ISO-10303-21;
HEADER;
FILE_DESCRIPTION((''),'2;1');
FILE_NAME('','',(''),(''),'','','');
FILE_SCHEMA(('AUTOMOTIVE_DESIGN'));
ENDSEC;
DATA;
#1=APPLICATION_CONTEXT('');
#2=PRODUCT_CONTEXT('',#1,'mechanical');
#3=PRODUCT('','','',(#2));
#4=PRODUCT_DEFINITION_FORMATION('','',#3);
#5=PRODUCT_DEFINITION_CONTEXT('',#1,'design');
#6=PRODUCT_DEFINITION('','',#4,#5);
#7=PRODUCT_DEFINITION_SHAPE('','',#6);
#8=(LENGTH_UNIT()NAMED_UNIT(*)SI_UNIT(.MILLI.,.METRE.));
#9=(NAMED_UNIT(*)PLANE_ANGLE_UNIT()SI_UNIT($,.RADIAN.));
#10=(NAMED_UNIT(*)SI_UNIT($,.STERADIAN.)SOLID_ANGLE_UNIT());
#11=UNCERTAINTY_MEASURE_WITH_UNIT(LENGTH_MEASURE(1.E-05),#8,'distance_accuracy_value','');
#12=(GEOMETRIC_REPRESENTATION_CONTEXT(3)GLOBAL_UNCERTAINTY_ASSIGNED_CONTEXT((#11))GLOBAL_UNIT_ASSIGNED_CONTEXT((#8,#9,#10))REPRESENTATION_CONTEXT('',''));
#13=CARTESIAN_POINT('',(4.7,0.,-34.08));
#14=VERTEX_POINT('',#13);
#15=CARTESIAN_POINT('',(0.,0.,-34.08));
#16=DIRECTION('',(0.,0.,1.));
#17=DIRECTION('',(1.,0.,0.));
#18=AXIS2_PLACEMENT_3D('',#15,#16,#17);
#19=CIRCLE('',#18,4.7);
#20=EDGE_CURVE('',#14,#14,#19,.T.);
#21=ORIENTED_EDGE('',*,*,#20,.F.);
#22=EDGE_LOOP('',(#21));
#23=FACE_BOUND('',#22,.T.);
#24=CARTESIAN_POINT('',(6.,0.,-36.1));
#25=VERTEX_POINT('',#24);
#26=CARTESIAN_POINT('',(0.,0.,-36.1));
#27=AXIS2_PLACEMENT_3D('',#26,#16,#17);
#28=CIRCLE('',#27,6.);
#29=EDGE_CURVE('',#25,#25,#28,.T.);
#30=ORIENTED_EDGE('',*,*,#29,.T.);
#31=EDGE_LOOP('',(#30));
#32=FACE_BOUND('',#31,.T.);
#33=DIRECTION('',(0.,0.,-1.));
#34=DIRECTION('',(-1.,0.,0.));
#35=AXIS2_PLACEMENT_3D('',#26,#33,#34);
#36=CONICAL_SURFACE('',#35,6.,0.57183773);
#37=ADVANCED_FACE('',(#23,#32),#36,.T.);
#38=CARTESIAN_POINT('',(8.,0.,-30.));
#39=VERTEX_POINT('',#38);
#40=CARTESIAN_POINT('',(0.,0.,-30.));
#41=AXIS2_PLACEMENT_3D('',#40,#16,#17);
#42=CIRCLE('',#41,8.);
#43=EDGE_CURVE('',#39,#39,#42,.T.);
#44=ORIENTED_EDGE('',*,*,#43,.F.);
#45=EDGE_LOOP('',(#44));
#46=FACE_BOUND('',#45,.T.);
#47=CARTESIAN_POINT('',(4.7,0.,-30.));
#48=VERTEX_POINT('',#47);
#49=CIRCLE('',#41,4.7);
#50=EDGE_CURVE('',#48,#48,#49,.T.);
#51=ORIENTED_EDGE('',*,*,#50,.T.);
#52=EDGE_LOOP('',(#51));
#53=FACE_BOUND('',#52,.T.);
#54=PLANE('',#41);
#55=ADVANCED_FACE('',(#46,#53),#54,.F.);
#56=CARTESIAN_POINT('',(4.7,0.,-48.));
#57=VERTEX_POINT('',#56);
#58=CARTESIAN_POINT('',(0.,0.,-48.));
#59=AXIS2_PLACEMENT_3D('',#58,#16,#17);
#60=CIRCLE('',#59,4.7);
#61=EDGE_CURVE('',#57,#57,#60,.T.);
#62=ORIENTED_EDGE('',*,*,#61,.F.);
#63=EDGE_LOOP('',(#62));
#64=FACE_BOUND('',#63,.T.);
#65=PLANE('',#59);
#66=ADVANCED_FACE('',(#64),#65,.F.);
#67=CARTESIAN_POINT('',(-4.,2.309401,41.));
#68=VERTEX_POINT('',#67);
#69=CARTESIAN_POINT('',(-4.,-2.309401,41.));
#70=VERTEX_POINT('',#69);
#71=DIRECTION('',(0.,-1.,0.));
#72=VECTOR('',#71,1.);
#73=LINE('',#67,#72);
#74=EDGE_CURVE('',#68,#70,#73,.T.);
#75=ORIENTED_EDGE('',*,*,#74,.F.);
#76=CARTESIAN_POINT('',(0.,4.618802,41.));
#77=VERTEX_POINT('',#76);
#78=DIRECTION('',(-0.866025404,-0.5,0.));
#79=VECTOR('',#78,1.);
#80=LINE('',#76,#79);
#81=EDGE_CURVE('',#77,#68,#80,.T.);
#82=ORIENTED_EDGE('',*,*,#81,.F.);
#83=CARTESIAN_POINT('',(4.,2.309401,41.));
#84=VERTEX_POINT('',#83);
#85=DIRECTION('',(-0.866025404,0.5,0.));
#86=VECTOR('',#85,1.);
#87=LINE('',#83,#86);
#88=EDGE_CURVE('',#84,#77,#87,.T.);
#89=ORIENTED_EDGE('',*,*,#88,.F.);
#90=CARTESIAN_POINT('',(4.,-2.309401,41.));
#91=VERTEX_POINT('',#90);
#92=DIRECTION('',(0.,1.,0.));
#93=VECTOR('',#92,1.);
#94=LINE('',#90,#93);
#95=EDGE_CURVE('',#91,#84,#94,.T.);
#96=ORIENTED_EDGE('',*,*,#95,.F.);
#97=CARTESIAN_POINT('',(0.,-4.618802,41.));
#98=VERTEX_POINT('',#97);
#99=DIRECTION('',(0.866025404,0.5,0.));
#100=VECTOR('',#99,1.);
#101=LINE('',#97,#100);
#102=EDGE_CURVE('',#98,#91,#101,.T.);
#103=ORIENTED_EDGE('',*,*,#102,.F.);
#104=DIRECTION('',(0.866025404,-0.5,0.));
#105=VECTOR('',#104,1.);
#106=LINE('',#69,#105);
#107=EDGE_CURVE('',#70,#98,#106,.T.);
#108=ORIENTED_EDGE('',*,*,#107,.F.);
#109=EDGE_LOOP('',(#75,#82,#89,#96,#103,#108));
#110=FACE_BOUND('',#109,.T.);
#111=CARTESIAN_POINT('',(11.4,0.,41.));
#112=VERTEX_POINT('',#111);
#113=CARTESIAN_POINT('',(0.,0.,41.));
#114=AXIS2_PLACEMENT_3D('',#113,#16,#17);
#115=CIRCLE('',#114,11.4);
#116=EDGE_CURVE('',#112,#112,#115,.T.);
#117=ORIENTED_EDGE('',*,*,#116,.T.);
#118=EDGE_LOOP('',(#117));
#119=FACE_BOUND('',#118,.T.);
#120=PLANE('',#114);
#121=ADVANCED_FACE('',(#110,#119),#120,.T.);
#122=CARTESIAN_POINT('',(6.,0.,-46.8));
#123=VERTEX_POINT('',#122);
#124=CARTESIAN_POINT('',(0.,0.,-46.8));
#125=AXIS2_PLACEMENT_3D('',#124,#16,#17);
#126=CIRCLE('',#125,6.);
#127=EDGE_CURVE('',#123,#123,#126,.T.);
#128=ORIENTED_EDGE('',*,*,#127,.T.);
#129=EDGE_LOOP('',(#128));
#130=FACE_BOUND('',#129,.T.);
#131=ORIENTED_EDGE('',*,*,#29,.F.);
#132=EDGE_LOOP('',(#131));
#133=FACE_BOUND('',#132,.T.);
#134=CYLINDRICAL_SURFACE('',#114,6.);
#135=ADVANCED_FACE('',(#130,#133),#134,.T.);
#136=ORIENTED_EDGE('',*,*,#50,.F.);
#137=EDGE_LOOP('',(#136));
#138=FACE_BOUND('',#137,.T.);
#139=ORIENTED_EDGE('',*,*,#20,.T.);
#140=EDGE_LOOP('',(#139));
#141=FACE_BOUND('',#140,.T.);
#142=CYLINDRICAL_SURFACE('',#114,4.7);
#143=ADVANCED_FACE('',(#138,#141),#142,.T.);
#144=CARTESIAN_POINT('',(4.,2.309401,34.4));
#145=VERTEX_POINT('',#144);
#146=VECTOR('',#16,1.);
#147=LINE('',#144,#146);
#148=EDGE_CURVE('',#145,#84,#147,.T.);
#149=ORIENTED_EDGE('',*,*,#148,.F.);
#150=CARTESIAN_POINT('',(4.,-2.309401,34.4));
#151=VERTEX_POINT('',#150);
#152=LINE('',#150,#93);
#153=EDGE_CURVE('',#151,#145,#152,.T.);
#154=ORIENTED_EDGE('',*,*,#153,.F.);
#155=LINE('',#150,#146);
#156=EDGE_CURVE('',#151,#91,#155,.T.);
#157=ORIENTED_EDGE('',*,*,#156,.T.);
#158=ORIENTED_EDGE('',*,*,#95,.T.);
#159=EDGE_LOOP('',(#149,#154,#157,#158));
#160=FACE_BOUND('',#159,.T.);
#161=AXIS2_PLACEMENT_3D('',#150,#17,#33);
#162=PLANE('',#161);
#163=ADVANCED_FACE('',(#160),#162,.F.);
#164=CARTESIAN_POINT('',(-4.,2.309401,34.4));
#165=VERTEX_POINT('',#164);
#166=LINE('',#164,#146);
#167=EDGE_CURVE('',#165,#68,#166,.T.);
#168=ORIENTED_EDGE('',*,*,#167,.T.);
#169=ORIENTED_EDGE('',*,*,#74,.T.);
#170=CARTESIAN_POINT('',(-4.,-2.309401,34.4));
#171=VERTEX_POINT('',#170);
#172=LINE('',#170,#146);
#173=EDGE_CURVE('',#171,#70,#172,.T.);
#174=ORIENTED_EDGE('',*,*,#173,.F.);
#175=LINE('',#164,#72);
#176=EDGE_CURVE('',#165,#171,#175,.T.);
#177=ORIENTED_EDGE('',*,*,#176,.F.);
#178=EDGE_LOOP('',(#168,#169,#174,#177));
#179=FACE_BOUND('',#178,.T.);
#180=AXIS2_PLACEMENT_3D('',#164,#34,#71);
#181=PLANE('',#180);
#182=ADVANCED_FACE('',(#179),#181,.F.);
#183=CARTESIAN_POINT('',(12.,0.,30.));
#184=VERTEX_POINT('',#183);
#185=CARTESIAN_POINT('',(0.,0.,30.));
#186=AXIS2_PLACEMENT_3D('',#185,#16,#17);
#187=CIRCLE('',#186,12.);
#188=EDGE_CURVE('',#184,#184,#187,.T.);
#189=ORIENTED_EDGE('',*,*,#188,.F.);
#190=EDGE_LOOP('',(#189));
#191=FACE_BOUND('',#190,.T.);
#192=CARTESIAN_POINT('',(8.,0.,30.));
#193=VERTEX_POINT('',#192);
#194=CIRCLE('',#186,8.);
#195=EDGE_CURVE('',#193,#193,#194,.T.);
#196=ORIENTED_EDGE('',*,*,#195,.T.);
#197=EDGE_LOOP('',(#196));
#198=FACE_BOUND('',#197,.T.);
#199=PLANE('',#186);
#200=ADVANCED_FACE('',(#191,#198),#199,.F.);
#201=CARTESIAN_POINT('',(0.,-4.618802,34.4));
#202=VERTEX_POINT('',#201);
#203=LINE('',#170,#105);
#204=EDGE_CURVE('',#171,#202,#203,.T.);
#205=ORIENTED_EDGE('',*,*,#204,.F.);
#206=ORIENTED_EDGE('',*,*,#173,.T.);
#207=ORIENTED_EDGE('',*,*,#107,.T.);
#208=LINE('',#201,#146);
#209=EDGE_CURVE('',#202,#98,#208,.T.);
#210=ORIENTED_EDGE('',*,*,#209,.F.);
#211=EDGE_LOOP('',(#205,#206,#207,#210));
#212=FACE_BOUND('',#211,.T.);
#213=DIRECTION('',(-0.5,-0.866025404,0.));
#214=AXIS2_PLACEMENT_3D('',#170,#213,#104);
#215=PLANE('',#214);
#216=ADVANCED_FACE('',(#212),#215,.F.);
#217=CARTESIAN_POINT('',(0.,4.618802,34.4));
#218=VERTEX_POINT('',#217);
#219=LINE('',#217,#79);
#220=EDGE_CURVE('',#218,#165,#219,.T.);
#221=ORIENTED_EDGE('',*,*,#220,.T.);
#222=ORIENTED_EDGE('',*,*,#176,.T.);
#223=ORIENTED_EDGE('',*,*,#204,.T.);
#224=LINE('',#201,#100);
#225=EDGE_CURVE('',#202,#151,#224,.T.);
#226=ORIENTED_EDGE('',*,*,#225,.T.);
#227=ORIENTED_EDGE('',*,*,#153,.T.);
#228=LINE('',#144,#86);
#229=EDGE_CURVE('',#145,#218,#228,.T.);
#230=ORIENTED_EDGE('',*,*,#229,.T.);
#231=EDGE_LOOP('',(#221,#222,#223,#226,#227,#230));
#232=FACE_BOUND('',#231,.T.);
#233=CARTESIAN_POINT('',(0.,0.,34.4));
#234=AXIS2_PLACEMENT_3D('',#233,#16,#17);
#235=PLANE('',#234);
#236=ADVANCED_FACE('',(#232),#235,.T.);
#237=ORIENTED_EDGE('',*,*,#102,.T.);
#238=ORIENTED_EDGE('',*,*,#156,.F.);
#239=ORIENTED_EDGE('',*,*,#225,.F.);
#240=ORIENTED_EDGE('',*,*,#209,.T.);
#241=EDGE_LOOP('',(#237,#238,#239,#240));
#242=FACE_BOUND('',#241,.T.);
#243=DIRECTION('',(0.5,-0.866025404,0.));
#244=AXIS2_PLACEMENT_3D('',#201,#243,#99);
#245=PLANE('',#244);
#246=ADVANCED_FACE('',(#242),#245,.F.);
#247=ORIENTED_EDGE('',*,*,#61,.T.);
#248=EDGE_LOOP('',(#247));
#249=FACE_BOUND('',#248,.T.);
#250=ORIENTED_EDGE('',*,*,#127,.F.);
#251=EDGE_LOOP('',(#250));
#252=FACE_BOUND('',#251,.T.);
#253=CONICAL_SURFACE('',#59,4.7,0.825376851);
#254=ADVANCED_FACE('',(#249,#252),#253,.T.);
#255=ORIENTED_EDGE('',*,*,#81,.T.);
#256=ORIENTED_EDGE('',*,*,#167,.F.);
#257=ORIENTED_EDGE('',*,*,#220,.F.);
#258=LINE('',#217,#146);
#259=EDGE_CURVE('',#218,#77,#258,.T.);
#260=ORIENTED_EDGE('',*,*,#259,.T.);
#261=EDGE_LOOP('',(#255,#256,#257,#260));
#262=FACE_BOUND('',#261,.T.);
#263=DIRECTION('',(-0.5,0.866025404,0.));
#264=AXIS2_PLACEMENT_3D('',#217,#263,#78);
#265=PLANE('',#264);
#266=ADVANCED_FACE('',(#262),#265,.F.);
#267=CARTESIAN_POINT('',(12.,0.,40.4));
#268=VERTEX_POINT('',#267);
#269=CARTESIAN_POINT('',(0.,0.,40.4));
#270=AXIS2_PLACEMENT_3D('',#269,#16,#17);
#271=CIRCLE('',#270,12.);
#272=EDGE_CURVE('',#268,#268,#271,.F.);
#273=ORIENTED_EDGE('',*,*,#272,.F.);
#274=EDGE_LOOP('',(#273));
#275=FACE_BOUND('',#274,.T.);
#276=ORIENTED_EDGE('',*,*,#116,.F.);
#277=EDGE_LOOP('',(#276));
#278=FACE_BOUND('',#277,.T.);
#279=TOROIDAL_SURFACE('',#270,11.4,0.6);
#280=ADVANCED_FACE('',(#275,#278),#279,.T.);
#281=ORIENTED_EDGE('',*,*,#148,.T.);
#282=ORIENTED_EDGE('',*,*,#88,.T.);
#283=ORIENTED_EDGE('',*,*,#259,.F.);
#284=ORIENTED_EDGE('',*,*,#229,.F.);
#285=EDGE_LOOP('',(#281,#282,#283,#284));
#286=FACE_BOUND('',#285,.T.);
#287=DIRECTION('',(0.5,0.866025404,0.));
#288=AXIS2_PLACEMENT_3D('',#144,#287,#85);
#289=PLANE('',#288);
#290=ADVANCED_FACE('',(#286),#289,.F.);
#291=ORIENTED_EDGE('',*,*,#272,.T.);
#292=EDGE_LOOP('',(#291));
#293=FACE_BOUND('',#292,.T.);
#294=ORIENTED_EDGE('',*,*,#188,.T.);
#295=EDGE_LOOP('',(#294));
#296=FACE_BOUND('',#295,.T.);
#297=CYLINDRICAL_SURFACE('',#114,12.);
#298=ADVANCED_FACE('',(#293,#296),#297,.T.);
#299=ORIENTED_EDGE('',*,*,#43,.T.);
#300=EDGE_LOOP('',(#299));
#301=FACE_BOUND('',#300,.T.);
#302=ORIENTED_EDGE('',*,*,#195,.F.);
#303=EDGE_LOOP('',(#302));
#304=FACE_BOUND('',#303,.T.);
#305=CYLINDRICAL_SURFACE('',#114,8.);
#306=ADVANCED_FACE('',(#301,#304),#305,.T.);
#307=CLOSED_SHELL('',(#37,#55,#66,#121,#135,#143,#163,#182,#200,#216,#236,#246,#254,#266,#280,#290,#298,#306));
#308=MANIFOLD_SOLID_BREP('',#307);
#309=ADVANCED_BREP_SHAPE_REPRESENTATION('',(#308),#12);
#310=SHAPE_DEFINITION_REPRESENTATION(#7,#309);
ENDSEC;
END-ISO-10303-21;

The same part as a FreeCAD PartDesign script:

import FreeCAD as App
import Part
import Sketcher
Q = App.Units.Quantity


def edges_at(feature, points):
    """Names of the edges that pass closest to the given points."""
    edges = feature.Shape.Edges
    near = lambda p: min(range(len(edges)), key=lambda i: edges[i].distToShape(Part.Vertex(*p))[0])
    return sorted({f"Edge{near(p) + 1}" for p in points})


def add_polygon(sketch, points):
    """Adds a closed chain of lines whose ends are joined by coincident constraints."""
    first, n = sketch.GeometryCount, len(points)
    for a, b in zip(points, points[1:] + points[:1]):
        sketch.addGeometry(Part.LineSegment(App.Vector(*a, 0), App.Vector(*b, 0)), False)
    for i in range(n):
        sketch.addConstraint(Sketcher.Constraint("Coincident", first + i, 2, first + (i + 1) % n, 1))

doc = App.newDocument("Part")
body = doc.addObject("PartDesign::Body", "Body")

# Sketch on XZ plane
sketch1 = body.newObject("Sketcher::SketchObject", "Sketch")
sketch1.AttachmentSupport = (doc.getObject("XZ_Plane"), [""])
sketch1.MapMode = "FlatFace"
add_polygon(sketch1, [(0, 41), (0, -48), (-4.7, -48), (-6, -46.8), (-6, -36.1), (-4.7, -34.1), (-4.7, -30), (-8, -30), (-8, 30), (-12, 30), (-12, 41)])  # lines 0-10
sketch1.addConstraint(Sketcher.Constraint("Vertical", 0))
sketch1.addConstraint(Sketcher.Constraint("Horizontal", 1))
sketch1.addConstraint(Sketcher.Constraint("Vertical", 3))
sketch1.addConstraint(Sketcher.Constraint("Vertical", 5))
sketch1.addConstraint(Sketcher.Constraint("Horizontal", 6))
sketch1.addConstraint(Sketcher.Constraint("Vertical", 7))
sketch1.addConstraint(Sketcher.Constraint("Horizontal", 8))
sketch1.addConstraint(Sketcher.Constraint("Vertical", 9))
sketch1.addConstraint(Sketcher.Constraint("Horizontal", 10))
sketch1.addConstraint(Sketcher.Constraint("PointOnObject", 0, 2, -2))
sketch1.addConstraint(Sketcher.Constraint("Vertical", 1, 2, 4, 2))
sketch1.addConstraint(Sketcher.Constraint("DistanceX", 8, 2, 8, 1, 4.0))
sketch1.addConstraint(Sketcher.Constraint("DistanceX", 10, 1, 10, 2, 12.0))
sketch1.addConstraint(Sketcher.Constraint("DistanceY", 0, 2, 0, 1, 89.0))
sketch1.addConstraint(Sketcher.Constraint("DistanceY", 7, 1, 7, 2, 60.0))
sketch1.addConstraint(Sketcher.Constraint("DistanceY", 9, 1, 9, 2, 11.0))
sketch1.addConstraint(Sketcher.Constraint("DistanceX", 1, 2, 1, 1, 4.7))
sketch1.addConstraint(Sketcher.Constraint("DistanceY", 3, 1, 3, 2, 10.7))
sketch1.addConstraint(Sketcher.Constraint("DistanceY", 0, 2, -1, 1, 48.0))
sketch1.addConstraint(Sketcher.Constraint("DistanceX", 2, 2, -1, 1, 6.0))
sketch1.addConstraint(Sketcher.Constraint("DistanceY", 5, 1, 5, 2, 4.08))
sketch1.addConstraint(Sketcher.Constraint("DistanceY", 2, 2, -1, 1, 46.8))
revolution = body.newObject("PartDesign::Revolution", "Revolution")
revolution.Profile = sketch1
revolution.ReferenceAxis = (sketch1, ["V_Axis"])
revolution.Angle = 360

# Sketch on XY plane
sketch2 = body.newObject("Sketcher::SketchObject", "Sketch001")
sketch2.AttachmentSupport = (doc.getObject("XY_Plane"), [""])
sketch2.MapMode = "FlatFace"
sketch2.AttachmentOffset = App.Placement(App.Vector(0, 0, 41), App.Rotation())
add_polygon(sketch2, [(4, 2.3), (0, 4.6), (-4, 2.3), (-4, -2.3), (0, -4.6), (4, -2.3)])  # lines 0-5
sketch2.addConstraint(Sketcher.Constraint("Vertical", 2))
sketch2.addConstraint(Sketcher.Constraint("Vertical", 5))
sketch2.addConstraint(Sketcher.Constraint("Symmetric", 0, 2, 3, 2, -1, 1))
sketch2.addConstraint(Sketcher.Constraint("Symmetric", 1, 2, 4, 2, -1, 1))
sketch2.addConstraint(Sketcher.Constraint("PointOnObject", 0, 2, -2))
sketch2.addConstraint(Sketcher.Constraint("Parallel", 0, 3))
sketch2.addConstraint(Sketcher.Constraint("Horizontal", 2, 2, 4, 2))
sketch2.addConstraint(Sketcher.Constraint("Angle", 0, Q("150 deg")))
sketch2.addConstraint(Sketcher.Constraint("DistanceX", 1, 2, -1, 1, 4.0))
sketch2.addConstraint(Sketcher.Constraint("DistanceY", -1, 1, 1, 2, 2.309401))
pocket1 = body.newObject("PartDesign::Pocket", "Pocket")
pocket1.Profile = sketch2
pocket1.Length = 6.6
doc.recompute()

fillet = body.newObject("PartDesign::Fillet", "Fillet")
fillet.Base = (pocket1, edges_at(pocket1, [(-12, 0, 41)]))
fillet.Radius = 0.6

doc.recompute()
